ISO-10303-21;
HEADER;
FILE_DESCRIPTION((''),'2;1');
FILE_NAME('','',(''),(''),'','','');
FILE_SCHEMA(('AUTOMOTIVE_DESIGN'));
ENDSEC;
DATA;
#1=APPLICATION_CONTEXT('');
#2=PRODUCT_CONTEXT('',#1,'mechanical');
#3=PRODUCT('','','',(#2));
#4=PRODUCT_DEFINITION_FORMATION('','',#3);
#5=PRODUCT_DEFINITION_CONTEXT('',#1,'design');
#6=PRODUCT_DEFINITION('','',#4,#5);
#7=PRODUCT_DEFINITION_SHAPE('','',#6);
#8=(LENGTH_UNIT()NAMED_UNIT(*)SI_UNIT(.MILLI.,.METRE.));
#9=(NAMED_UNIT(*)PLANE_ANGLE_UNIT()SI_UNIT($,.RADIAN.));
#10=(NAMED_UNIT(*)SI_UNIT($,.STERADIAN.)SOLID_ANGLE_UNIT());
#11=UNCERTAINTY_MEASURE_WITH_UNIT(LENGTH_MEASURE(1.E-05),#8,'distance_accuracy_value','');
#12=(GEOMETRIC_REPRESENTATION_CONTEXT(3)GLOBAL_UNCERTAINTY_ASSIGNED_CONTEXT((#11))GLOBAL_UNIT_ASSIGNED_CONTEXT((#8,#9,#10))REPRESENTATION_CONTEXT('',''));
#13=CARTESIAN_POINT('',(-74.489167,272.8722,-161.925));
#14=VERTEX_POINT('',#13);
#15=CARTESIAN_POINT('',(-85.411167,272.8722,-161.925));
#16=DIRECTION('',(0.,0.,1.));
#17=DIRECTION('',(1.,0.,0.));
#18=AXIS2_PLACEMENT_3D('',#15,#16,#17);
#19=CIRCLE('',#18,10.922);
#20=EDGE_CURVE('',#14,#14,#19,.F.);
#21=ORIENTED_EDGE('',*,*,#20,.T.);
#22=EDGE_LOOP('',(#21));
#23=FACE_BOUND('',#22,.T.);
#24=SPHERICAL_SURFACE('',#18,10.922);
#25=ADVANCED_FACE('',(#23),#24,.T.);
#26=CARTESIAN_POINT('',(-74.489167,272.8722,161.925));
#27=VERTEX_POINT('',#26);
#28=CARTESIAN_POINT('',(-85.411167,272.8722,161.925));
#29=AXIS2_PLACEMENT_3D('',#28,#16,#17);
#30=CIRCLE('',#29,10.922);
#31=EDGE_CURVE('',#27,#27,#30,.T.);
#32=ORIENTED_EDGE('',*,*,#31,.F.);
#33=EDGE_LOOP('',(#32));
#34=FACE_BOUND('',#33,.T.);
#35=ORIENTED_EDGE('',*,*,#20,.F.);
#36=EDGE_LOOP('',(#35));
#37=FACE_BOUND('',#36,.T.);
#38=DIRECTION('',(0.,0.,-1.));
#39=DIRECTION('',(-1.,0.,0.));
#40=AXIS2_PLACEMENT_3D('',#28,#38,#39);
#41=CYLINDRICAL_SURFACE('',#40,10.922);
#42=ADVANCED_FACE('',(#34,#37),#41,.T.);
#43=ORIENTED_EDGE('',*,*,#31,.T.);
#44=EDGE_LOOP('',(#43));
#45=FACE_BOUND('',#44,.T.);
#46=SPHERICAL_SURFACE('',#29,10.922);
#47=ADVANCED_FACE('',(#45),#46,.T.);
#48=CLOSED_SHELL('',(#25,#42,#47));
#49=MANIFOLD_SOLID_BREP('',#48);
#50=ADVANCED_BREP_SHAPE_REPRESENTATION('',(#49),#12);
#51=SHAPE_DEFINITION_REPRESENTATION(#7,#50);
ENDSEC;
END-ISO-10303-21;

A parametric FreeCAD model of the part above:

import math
import FreeCAD as App
import Part
import Sketcher
from FreeCAD import Vector
Q = App.Units.Quantity

doc = App.newDocument("Part")
params = doc.addObject("Spreadsheet::Sheet", "Params")
for row, (alias, value) in enumerate([
    ("sketch1_diameter", "0.86 in"),
    ("pad1_length", "12.75 in"),
    ("sketch2_radius", "0.43 in"),
    ("revolution_angle", "360 deg"),
    ("sketch3_radius", "0.43 in"),
    ("revolution2_angle", "360 deg"),
], start=1):
    params.set(f"A{row}", alias)
    params.set(f"B{row}", "=" + value)
    params.setAlias(f"B{row}", alias)

body = doc.addObject("PartDesign::Body", "Body")

# Sketch on XY plane
sketch1 = body.newObject("Sketcher::SketchObject", "Sketch")
sketch1.AttachmentSupport = (doc.getObject("XY_Plane"), [""])
sketch1.MapMode = "FlatFace"
sketch1.addGeometry(Part.Circle(Vector(-85, 273, 0), Vector(0, 0, 1), 11), False)
sketch1.addConstraint(Sketcher.Constraint("Diameter", 0, Q("0.86 in")))
sketch1.addConstraint(Sketcher.Constraint("DistanceY", -1, 1, 0, 3, Q("10.743 in")))
sketch1.addConstraint(Sketcher.Constraint("DistanceX", 0, 3, -1, 1, 85.411167))
sketch1.setExpression("Constraints[0]", "Params.sketch1_diameter")
pad1 = body.newObject("PartDesign::Pad", "Pad")
pad1.Profile = sketch1
pad1.setExpression("Length", "Params.pad1_length")
pad1.Midplane = True

# Sketch on XY plane
sketch2 = body.newObject("Sketcher::SketchObject", "Sketch001")
sketch2.AttachmentSupport = (doc.getObject("XY_Plane"), [""])
sketch2.MapMode = "FlatFace"
sketch2.AttachmentOffset = App.Placement(Vector(0, 0, -6.375 * 25.4), App.Rotation())
sketch2.addGeometry(Part.LineSegment(Vector(-74, 273, 0), Vector(-96, 273, 0)), False)
sketch2.addGeometry(Part.ArcOfCircle(Part.Circle(Vector(-85, 273, 0), Vector(0, 0, 1), 11), math.radians(0), math.radians(180)), False)
sketch2.addGeometry(Part.LineSegment(Vector(-74, 273, 0), Vector(-96, 273, 0)), True)  # axis
sketch2.addConstraint(Sketcher.Constraint("Coincident", 0, 1, 1, 1))
sketch2.addConstraint(Sketcher.Constraint("Coincident", 1, 2, 0, 2))
sketch2.addConstraint(Sketcher.Constraint("Horizontal", 0))
sketch2.addConstraint(Sketcher.Constraint("Horizontal", 2))
sketch2.addConstraint(Sketcher.Constraint("Coincident", 2, 1, 0, 1))
sketch2.addConstraint(Sketcher.Constraint("Horizontal", 1, 3, 0, 1))
sketch2.addConstraint(Sketcher.Constraint("Equal", 0, 2))
sketch2.addConstraint(Sketcher.Constraint("Radius", 1, Q("0.43 in")))
sketch2.addConstraint(Sketcher.Constraint("DistanceY", -1, 1, 1, 3, Q("10.743 in")))
sketch2.addConstraint(Sketcher.Constraint("DistanceX", 1, 3, -1, 1, 85.411167))
sketch2.setExpression("Constraints[7]", "Params.sketch2_radius")
revolution = body.newObject("PartDesign::Revolution", "Revolution")
revolution.Profile = sketch2
revolution.ReferenceAxis = (sketch2, ["Axis0"])
revolution.setExpression("Angle", "Params.revolution_angle")

# Sketch on XY plane
sketch3 = body.newObject("Sketcher::SketchObject", "Sketch002")
sketch3.AttachmentSupport = (doc.getObject("XY_Plane"), [""])
sketch3.MapMode = "FlatFace"
sketch3.AttachmentOffset = App.Placement(Vector(0, 0, 6.375 * 25.4), App.Rotation())
sketch3.addGeometry(Part.LineSegment(Vector(-96, 273, 0), Vector(-74, 273, 0)), False)
sketch3.addGeometry(Part.ArcOfCircle(Part.Circle(Vector(-85, 273, 0), Vector(0, 0, 1), 11), math.radians(0), math.radians(180)), False)
sketch3.addGeometry(Part.LineSegment(Vector(-74, 273, 0), Vector(-96, 273, 0)), True)  # axis
sketch3.addConstraint(Sketcher.Constraint("Coincident", 0, 1, 1, 2))
sketch3.addConstraint(Sketcher.Constraint("Coincident", 1, 1, 0, 2))
sketch3.addConstraint(Sketcher.Constraint("Horizontal", 0))
sketch3.addConstraint(Sketcher.Constraint("Horizontal", 2))
sketch3.addConstraint(Sketcher.Constraint("Coincident", 2, 1, 1, 1))
sketch3.addConstraint(Sketcher.Constraint("Horizontal", 1, 3, 0, 1))
sketch3.addConstraint(Sketcher.Constraint("Equal", 0, 2))
sketch3.addConstraint(Sketcher.Constraint("Radius", 1, Q("0.43 in")))
sketch3.addConstraint(Sketcher.Constraint("DistanceY", -1, 1, 1, 3, Q("10.743 in")))
sketch3.addConstraint(Sketcher.Constraint("DistanceX", 1, 3, -1, 1, 85.411167))
sketch3.setExpression("Constraints[7]", "Params.sketch3_radius")
revolution2 = body.newObject("PartDesign::Revolution", "Revolution001")
revolution2.Profile = sketch3
revolution2.ReferenceAxis = (sketch3, ["Axis0"])
revolution2.setExpression("Angle", "Params.revolution2_angle")

doc.recompute()
